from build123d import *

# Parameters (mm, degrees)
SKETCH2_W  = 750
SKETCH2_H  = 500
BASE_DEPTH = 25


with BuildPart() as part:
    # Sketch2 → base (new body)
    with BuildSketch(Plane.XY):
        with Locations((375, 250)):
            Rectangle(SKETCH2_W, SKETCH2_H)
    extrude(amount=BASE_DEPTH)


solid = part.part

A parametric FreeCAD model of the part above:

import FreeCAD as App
import Part
import Sketcher
from FreeCAD import Vector
Q = App.Units.Quantity


def add_polygon(sketch, points):
    """Adds a closed chain of lines whose ends are joined by coincident constraints."""
    first, n = sketch.GeometryCount, len(points)
    for a, b in zip(points, points[1:] + points[:1]):
        sketch.addGeometry(Part.LineSegment(App.Vector(*a, 0), App.Vector(*b, 0)), False)
    for i in range(n):
        sketch.addConstraint(Sketcher.Constraint("Coincident", first + i, 2, first + (i + 1) % n, 1))

doc = App.newDocument("Part")
body = doc.addObject("PartDesign::Body", "Body")

# Sketch on XY plane
sketch1 = body.newObject("Sketcher::SketchObject", "Sketch")
sketch1.AttachmentSupport = (doc.getObject("XY_Plane"), [""])
sketch1.MapMode = "FlatFace"
add_polygon(sketch1, [(0, 500), (0, 0), (750, 0), (750, 500)])  # lines 0-3
sketch1.addConstraint([
    Sketcher.Constraint("Vertical", 0),
    Sketcher.Constraint("Horizontal", 1),
    Sketcher.Constraint("Vertical", 2),
    Sketcher.Constraint("Horizontal", 3),
    Sketcher.Constraint("Coincident", 0, 2, -1, 1),
    Sketcher.Constraint("DistanceX", 1, 1, 1, 2, Q("750 mm")),
    Sketcher.Constraint("DistanceY", 0, 2, 0, 1, Q("500 mm")),
])
pad1 = body.newObject("PartDesign::Pad", "Pad")
pad1.Profile = sketch1
pad1.Length = 25

doc.recompute()
